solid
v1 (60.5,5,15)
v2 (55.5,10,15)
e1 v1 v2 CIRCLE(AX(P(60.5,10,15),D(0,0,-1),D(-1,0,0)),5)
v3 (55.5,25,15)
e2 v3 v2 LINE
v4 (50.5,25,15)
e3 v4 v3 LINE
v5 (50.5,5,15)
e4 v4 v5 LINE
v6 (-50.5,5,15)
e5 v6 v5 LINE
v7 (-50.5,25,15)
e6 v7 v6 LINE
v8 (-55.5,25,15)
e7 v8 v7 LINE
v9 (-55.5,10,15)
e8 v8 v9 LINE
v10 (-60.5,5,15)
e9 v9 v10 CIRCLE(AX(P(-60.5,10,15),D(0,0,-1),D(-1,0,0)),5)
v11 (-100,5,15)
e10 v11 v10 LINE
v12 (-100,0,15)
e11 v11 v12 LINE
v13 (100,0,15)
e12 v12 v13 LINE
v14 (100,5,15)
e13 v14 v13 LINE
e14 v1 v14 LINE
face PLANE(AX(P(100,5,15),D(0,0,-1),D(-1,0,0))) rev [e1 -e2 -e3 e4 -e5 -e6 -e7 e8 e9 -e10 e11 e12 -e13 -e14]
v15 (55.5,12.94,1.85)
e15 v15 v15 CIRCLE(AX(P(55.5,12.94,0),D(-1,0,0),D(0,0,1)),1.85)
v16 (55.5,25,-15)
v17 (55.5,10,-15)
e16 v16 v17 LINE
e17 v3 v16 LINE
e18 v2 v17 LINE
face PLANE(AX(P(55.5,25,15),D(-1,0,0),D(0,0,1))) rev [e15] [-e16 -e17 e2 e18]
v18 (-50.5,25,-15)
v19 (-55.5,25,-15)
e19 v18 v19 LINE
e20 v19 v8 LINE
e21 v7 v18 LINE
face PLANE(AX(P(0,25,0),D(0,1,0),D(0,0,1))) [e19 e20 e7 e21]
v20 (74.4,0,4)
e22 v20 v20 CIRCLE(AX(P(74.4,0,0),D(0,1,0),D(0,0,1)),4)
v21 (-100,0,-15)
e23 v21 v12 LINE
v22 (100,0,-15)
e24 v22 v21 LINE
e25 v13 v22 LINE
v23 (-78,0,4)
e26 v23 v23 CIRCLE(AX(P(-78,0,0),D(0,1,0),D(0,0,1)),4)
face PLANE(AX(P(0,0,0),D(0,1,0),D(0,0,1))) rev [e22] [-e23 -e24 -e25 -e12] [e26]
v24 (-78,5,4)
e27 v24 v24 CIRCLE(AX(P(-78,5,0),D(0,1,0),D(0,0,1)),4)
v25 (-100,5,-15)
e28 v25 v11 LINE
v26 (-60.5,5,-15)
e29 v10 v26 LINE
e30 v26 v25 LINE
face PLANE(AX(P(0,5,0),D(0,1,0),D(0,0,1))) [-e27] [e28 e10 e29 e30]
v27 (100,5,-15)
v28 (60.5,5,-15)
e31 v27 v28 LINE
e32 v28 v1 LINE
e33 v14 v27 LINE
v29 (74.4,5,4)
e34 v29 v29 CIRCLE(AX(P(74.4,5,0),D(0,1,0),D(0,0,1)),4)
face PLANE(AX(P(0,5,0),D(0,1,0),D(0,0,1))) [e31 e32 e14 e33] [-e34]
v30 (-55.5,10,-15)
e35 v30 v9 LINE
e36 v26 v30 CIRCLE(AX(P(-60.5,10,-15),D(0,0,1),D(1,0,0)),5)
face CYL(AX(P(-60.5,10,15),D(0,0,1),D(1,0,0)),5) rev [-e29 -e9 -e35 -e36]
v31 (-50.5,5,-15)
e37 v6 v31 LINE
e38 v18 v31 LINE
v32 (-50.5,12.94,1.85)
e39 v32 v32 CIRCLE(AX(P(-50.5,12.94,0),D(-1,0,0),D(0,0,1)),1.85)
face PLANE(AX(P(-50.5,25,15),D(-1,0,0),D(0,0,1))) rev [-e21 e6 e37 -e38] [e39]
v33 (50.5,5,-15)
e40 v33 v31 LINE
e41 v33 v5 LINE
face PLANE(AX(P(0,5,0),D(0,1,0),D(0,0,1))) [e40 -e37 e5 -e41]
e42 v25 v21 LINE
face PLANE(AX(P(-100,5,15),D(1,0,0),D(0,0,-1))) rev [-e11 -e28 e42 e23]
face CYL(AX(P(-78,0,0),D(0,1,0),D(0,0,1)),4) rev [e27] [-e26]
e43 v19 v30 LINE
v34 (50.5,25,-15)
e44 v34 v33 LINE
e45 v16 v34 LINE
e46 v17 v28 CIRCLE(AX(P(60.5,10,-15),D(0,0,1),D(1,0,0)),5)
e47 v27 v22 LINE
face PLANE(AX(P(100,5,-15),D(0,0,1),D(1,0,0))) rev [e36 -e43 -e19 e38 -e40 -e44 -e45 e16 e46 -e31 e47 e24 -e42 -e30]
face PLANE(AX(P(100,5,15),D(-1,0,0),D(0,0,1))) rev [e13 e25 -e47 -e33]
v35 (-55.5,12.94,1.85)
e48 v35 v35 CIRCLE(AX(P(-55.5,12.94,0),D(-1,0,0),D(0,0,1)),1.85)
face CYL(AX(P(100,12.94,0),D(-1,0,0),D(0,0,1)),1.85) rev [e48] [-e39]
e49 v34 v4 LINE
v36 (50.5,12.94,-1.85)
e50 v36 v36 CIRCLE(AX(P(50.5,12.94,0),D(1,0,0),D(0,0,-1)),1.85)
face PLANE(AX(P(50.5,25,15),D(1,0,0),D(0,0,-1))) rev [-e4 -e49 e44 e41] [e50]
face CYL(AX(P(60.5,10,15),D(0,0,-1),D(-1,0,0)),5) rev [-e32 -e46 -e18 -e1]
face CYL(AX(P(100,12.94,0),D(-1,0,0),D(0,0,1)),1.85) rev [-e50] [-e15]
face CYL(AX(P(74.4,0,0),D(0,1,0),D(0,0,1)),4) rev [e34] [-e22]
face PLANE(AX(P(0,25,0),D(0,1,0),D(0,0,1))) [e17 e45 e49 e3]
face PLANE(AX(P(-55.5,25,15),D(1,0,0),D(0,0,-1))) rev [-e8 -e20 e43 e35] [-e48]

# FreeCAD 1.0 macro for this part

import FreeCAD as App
import Part
import Sketcher
from FreeCAD import Vector


def edges_at(feature, points):
    """Names of the edges that pass closest to the given points."""
    edges = feature.Shape.Edges
    near = lambda p: min(range(len(edges)), key=lambda i: edges[i].distToShape(Part.Vertex(*p))[0])
    return sorted({f"Edge{near(p) + 1}" for p in points})

doc = App.newDocument("Part")
body = doc.addObject("PartDesign::Body", "Body")

sketch1 = body.newObject("Sketcher::SketchObject", "Sketch")
sketch1.AttachmentSupport = (doc.getObject("XZ_Plane"), [""])
sketch1.MapMode = "FlatFace"
sketch1.addGeometry([
    Part.LineSegment(Vector(-100, -15, 0), Vector(-100, 15, 0)),
    Part.LineSegment(Vector(-100, 15, 0), Vector(100, 15, 0)),
    Part.LineSegment(Vector(100, 15, 0), Vector(100, -15, 0)),
    Part.LineSegment(Vector(100, -15, 0), Vector(-100, -15, 0)),
], False)
sketch1.addConstraint([
    Sketcher.Constraint("Coincident", 0, 2, 1, 1),
    Sketcher.Constraint("Coincident", 1, 2, 2, 1),
    Sketcher.Constraint("Coincident", 2, 2, 3, 1),
    Sketcher.Constraint("Coincident", 3, 2, 0, 1),
    Sketcher.Constraint("Vertical", 0),
    Sketcher.Constraint("Horizontal", 1),
    Sketcher.Constraint("Vertical", 2),
    Sketcher.Constraint("Horizontal", 3),
    Sketcher.Constraint("Symmetric", 0, 2, 2, 2, -1, 1),
    Sketcher.Constraint("DistanceX", 1, 1, 1, 2, 200.0),
    Sketcher.Constraint("DistanceY", 0, 1, 0, 2, 30.0),
])
pad1 = body.newObject("PartDesign::Pad", "Pad")
pad1.Profile = sketch1
pad1.Length = 5
pad1.Reversed = True

sketch2 = body.newObject("Sketcher::SketchObject", "Sketch001")
sketch2.AttachmentSupport = (doc.getObject("XZ_Plane"), [""])
sketch2.MapMode = "FlatFace"
sketch2.AttachmentOffset = App.Placement(Vector(0, 0, -5), App.Rotation())
sketch2.addGeometry([
    Part.LineSegment(Vector(-55.5, -15, 0), Vector(-55.5, 15, 0)),
    Part.LineSegment(Vector(-55.5, 15, 0), Vector(-50.5, 15, 0)),
    Part.LineSegment(Vector(-50.5, 15, 0), Vector(-50.5, -15, 0)),
    Part.LineSegment(Vector(-50.5, -15, 0), Vector(-55.5, -15, 0)),
    Part.LineSegment(Vector(50.5, -15, 0), Vector(50.5, 15, 0)),
    Part.LineSegment(Vector(50.5, 15, 0), Vector(55.5, 15, 0)),
    Part.LineSegment(Vector(55.5, 15, 0), Vector(55.5, -15, 0)),
    Part.LineSegment(Vector(55.5, -15, 0), Vector(50.5, -15, 0)),
], False)
sketch2.addConstraint([
    Sketcher.Constraint("Coincident", 0, 2, 1, 1),
    Sketcher.Constraint("Coincident", 1, 2, 2, 1),
    Sketcher.Constraint("Coincident", 2, 2, 3, 1),
    Sketcher.Constraint("Coincident", 3, 2, 0, 1),
    Sketcher.Constraint("Coincident", 4, 2, 5, 1),
    Sketcher.Constraint("Coincident", 5, 2, 6, 1),
    Sketcher.Constraint("Coincident", 6, 2, 7, 1),
    Sketcher.Constraint("Coincident", 7, 2, 4, 1),
    Sketcher.Constraint("Vertical", 0),
    Sketcher.Constraint("Horizontal", 1),
    Sketcher.Constraint("Vertical", 2),
    Sketcher.Constraint("Horizontal", 3),
    Sketcher.Constraint("Vertical", 4),
    Sketcher.Constraint("Horizontal", 5),
    Sketcher.Constraint("Vertical", 6),
    Sketcher.Constraint("Horizontal", 7),
    Sketcher.Constraint("Symmetric", 2, 2, 4, 2, -1, 1),
    Sketcher.Constraint("Symmetric", 0, 2, 6, 2, -1, 1),
    Sketcher.Constraint("Horizontal", 1, 2, 4, 2),
    Sketcher.Constraint("DistanceX", 1, 1, 1, 2, 5.0),
    Sketcher.Constraint("DistanceY", 0, 1, 0, 2, 30.0),
    Sketcher.Constraint("DistanceX", 1, 2, 4, 2, 101.0),
])
pad2 = body.newObject("PartDesign::Pad", "Pad001")
pad2.Profile = sketch2
pad2.Length = 20
pad2.Reversed = True
doc.recompute()

fillet = body.newObject("PartDesign::Fillet", "Fillet")
fillet.Base = (pad2, edges_at(pad2, [(-55.5, 5, 0), (55.5, 5, 0)]))
fillet.Radius = 5

sketch3 = body.newObject("Sketcher::SketchObject", "Sketch002")
sketch3.AttachmentSupport = (doc.getObject("YZ_Plane"), [""])
sketch3.MapMode = "FlatFace"
sketch3.AttachmentOffset = App.Placement(Vector(0, 0, -55.5), App.Rotation())
sketch3.addGeometry(Part.Circle(Vector(12.94, 0, 0), Vector(0, 0, 1), 1.85), False)
sketch3.addConstraint([
    Sketcher.Constraint("PointOnObject", 0, 3, -1),
    Sketcher.Constraint("Diameter", 0, 3.7),
    Sketcher.Constraint("DistanceX", -1, 1, 0, 3, 12.94),
])
pocket1 = body.newObject("PartDesign::Pocket", "Pocket")
pocket1.Profile = sketch3
pocket1.Type = "ThroughAll"
pocket1.Reversed = True

sketch4 = body.newObject("Sketcher::SketchObject", "Sketch003")
sketch4.AttachmentSupport = (doc.getObject("XZ_Plane"), [""])
sketch4.MapMode = "FlatFace"
sketch4.AttachmentOffset = App.Placement(Vector(0, 0, -5), App.Rotation())
sketch4.addGeometry(Part.Circle(Vector(-78, 0, 0), Vector(0, 0, 1), 4), False)
sketch4.addConstraint([
    Sketcher.Constraint("PointOnObject", 0, 3, -1),
    Sketcher.Constraint("Diameter", 0, 8.0),
    Sketcher.Constraint("DistanceX", 0, 3, -1, 1, 78.0),
])
pocket2 = body.newObject("PartDesign::Pocket", "Pocket001")
pocket2.Profile = sketch4
pocket2.Type = "ThroughAll"
pocket2.Reversed = True

sketch5 = body.newObject("Sketcher::SketchObject", "Sketch004")
sketch5.AttachmentSupport = (doc.getObject("XZ_Plane"), [""])
sketch5.MapMode = "FlatFace"
sketch5.AttachmentOffset = App.Placement(Vector(0, 0, -5), App.Rotation())
sketch5.addGeometry(Part.Circle(Vector(74.4, 0, 0), Vector(0, 0, 1), 4), False)
sketch5.addConstraint([
    Sketcher.Constraint("PointOnObject", 0, 3, -1),
    Sketcher.Constraint("Diameter", 0, 8.0),
    Sketcher.Constraint("DistanceX", -1, 1, 0, 3, 74.4),
])
pocket3 = body.newObject("PartDesign::Pocket", "Pocket002")
pocket3.Profile = sketch5
pocket3.Type = "ThroughAll"
pocket3.Reversed = True

doc.recompute()
